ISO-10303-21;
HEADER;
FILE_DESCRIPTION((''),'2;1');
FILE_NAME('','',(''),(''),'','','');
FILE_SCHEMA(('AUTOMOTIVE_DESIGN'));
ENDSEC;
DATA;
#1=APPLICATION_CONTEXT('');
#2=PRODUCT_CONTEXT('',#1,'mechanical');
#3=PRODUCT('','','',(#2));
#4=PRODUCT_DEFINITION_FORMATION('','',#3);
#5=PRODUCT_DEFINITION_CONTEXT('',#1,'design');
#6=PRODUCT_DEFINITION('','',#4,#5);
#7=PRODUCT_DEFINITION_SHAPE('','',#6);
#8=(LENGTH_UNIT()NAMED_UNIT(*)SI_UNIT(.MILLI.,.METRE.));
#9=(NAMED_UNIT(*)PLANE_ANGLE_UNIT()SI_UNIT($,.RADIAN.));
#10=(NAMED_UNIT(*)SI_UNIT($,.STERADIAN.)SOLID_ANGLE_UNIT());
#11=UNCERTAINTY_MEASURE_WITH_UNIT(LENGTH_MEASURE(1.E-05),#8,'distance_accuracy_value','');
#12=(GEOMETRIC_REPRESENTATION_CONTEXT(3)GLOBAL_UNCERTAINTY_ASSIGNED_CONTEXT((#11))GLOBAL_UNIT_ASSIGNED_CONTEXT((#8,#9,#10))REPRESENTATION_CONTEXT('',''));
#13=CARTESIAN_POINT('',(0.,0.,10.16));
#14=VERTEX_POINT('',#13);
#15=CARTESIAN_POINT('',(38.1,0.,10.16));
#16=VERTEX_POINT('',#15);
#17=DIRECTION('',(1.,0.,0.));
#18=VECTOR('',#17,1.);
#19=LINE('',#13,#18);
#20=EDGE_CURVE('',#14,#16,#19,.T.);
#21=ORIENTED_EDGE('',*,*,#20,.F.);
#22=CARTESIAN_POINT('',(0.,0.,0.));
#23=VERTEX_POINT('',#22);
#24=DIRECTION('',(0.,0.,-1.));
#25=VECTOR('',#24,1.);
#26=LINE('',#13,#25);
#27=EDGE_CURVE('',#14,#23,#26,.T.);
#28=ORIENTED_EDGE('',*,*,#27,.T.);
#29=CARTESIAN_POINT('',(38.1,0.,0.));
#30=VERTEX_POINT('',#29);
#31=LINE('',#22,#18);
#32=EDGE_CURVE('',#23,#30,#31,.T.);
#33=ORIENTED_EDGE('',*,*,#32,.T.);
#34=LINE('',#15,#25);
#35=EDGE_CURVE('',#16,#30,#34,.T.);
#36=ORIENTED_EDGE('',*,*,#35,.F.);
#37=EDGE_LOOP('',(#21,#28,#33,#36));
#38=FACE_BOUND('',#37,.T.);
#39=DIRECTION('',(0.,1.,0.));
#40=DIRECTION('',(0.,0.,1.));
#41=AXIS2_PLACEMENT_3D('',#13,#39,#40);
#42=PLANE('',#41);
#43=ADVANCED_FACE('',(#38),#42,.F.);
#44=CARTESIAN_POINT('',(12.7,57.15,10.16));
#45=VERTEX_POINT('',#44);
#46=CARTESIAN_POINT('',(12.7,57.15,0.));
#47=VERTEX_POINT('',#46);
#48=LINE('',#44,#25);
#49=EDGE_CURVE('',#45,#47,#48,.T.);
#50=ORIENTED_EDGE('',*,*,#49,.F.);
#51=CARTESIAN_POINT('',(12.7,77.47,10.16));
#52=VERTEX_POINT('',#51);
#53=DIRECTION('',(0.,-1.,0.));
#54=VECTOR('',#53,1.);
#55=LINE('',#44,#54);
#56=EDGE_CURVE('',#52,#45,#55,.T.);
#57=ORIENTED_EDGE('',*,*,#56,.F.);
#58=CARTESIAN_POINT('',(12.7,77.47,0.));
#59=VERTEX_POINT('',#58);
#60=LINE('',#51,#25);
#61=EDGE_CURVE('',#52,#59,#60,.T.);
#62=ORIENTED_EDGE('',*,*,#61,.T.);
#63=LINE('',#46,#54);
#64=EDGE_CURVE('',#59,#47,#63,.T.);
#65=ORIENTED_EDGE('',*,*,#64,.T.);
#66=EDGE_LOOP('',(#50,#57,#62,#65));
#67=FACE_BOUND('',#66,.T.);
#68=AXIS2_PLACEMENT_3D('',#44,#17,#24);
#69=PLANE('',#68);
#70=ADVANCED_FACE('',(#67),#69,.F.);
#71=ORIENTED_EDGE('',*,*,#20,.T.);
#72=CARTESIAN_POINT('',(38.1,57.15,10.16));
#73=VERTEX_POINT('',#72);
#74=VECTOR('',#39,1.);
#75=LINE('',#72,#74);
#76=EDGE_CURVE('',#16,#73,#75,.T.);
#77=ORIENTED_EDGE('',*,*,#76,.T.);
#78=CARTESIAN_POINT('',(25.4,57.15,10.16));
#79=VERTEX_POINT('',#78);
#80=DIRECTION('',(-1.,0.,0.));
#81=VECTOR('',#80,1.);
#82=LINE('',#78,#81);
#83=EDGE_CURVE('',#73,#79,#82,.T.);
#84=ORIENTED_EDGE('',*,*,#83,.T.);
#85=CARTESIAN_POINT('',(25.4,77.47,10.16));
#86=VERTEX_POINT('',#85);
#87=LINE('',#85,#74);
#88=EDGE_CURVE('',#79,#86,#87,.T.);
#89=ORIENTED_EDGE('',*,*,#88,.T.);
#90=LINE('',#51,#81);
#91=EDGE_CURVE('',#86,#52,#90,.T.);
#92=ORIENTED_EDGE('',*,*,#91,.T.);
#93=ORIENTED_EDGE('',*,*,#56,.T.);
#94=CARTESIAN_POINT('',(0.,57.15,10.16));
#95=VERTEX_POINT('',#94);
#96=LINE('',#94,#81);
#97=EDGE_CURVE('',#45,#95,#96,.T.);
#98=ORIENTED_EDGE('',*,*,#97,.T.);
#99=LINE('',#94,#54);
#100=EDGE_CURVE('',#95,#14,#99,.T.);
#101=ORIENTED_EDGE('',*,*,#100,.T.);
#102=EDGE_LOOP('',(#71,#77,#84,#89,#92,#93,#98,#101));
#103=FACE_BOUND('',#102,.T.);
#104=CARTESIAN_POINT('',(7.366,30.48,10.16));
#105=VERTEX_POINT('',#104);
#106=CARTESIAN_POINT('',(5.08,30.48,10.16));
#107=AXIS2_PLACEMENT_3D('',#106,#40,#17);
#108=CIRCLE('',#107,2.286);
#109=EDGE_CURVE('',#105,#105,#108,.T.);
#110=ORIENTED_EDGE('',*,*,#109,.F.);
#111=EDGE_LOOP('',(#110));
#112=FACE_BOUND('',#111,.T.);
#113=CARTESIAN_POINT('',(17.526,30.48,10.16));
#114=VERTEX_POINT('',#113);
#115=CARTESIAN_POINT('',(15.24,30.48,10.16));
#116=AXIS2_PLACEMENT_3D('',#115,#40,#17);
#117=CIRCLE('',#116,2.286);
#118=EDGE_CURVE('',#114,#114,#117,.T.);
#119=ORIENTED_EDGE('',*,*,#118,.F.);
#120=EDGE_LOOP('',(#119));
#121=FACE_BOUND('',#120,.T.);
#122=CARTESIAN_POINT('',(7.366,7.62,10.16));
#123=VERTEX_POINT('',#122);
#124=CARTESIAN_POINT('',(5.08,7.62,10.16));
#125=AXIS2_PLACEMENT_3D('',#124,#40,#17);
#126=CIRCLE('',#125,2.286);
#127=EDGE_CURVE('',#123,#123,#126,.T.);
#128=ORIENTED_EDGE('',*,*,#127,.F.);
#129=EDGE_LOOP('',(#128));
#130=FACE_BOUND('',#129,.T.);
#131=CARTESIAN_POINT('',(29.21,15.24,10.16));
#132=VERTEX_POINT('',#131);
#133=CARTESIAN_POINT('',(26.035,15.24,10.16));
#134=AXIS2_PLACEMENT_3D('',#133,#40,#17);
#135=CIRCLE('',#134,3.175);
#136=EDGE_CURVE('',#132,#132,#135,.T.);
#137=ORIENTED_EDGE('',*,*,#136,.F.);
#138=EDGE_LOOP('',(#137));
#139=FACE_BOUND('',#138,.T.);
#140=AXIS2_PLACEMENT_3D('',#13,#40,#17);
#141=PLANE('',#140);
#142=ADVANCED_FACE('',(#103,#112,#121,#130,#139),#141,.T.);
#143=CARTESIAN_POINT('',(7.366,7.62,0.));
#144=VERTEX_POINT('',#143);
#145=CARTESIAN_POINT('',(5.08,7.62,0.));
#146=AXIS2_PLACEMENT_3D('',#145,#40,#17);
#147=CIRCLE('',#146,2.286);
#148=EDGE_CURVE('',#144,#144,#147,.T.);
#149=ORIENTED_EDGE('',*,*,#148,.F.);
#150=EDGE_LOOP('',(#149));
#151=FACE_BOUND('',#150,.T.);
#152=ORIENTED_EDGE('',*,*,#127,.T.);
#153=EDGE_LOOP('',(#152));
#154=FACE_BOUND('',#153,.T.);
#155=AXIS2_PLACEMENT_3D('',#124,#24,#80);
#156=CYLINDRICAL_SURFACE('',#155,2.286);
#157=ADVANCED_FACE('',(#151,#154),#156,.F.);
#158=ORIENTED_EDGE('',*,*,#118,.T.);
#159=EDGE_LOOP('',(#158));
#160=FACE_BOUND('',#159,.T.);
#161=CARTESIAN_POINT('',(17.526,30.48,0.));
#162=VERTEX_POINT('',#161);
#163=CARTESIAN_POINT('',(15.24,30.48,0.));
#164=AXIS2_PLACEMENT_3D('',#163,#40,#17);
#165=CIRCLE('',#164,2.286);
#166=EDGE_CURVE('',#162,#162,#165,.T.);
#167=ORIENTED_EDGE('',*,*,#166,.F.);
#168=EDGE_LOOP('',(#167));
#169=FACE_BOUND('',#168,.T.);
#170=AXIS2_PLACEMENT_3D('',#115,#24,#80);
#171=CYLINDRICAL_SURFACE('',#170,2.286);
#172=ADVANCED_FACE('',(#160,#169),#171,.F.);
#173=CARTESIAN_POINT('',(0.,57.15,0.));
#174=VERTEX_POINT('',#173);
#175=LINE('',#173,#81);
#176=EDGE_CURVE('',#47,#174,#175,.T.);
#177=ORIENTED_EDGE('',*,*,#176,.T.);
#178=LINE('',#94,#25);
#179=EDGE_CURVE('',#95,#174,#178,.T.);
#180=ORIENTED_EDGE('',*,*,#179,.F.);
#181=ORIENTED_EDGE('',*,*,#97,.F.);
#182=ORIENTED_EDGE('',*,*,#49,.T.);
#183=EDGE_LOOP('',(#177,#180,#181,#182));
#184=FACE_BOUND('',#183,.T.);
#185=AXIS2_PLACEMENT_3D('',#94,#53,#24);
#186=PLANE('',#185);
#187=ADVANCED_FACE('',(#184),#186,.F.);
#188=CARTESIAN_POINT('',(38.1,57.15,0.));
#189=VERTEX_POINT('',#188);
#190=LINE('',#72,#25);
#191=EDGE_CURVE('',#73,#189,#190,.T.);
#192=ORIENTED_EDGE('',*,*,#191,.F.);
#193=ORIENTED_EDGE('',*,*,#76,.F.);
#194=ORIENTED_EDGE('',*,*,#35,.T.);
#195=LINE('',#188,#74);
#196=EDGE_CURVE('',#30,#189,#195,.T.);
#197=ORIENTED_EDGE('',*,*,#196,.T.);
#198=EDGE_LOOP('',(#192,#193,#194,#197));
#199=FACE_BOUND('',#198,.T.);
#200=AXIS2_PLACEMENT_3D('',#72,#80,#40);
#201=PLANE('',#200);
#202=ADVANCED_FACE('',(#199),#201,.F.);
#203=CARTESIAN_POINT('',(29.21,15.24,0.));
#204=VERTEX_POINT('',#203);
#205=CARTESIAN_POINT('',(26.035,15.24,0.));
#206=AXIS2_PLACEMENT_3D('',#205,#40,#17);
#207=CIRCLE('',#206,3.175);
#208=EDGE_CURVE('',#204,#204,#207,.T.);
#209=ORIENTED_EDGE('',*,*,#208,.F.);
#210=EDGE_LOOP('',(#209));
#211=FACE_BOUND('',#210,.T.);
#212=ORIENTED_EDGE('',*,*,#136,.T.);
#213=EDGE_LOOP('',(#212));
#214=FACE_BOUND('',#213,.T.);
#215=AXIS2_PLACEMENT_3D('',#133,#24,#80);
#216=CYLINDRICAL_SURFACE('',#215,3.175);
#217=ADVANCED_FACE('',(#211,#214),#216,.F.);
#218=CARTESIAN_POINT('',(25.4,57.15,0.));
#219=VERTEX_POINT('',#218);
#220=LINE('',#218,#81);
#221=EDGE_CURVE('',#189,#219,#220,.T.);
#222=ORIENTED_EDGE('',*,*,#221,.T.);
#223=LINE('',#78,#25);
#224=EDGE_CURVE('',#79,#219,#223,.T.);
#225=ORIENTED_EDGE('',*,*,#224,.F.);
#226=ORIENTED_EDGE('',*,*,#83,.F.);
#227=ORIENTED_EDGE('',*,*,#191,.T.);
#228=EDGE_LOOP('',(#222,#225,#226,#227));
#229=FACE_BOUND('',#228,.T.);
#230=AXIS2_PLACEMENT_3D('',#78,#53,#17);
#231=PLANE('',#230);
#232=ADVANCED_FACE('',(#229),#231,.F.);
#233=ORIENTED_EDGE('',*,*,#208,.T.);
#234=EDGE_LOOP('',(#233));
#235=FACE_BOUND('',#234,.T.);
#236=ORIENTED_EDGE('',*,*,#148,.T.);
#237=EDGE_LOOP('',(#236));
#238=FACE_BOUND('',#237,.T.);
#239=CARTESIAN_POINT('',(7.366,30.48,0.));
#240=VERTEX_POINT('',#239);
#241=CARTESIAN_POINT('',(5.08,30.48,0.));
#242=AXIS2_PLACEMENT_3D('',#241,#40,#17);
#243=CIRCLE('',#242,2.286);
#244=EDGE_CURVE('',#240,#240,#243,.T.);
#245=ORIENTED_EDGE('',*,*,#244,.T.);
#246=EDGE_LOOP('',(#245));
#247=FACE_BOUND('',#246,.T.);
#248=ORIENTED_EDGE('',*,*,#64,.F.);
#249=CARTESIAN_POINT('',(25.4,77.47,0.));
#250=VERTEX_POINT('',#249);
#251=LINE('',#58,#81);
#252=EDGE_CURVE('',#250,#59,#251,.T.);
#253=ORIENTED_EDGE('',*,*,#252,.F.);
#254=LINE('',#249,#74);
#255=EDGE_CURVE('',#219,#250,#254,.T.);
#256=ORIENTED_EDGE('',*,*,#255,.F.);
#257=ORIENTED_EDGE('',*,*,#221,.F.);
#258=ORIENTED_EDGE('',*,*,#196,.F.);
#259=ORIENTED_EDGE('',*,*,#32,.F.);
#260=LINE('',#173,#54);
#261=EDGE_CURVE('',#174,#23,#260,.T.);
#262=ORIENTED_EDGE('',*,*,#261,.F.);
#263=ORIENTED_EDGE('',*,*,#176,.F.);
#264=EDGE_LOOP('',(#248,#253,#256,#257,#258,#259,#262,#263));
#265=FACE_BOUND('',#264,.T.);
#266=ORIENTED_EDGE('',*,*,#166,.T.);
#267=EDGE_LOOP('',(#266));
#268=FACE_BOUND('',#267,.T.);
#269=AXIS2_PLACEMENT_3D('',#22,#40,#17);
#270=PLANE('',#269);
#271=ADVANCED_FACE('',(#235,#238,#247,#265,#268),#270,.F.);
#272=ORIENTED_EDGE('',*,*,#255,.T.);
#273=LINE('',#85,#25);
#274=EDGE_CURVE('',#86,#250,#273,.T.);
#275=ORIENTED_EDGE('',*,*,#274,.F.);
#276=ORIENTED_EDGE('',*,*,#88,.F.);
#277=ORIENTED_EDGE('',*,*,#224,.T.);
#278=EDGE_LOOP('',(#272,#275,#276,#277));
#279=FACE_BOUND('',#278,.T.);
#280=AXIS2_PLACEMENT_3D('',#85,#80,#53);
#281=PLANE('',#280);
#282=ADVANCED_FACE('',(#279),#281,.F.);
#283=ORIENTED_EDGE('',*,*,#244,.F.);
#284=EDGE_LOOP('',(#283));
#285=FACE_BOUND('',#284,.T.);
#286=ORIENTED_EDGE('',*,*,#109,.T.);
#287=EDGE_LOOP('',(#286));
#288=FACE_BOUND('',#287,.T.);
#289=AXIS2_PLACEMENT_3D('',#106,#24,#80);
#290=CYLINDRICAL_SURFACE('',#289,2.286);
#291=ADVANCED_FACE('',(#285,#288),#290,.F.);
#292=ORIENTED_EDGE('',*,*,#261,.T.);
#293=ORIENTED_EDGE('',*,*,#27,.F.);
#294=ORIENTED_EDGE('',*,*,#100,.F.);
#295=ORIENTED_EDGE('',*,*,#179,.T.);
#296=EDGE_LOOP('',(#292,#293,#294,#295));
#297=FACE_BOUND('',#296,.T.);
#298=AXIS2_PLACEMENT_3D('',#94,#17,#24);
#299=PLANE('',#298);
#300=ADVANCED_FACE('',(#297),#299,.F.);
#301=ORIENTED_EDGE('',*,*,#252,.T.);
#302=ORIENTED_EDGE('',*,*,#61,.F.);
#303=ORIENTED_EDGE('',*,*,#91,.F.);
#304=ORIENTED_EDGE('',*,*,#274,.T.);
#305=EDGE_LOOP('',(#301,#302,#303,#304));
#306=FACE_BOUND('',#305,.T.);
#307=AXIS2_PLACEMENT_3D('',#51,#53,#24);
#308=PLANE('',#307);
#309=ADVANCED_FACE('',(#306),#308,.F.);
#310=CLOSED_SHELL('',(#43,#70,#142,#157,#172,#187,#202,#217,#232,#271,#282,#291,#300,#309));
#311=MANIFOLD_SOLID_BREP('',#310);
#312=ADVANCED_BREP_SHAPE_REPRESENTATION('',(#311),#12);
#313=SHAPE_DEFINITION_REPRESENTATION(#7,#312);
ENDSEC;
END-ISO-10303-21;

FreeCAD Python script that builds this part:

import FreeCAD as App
import Part
import Sketcher

V = App.Vector
Q = App.Units.Quantity


def add_polygon(sketch, points):
    """Adds a closed chain of lines whose ends are joined by coincident constraints."""
    first, n = sketch.GeometryCount, len(points)
    for a, b in zip(points, points[1:] + points[:1]):
        sketch.addGeometry(Part.LineSegment(App.Vector(*a, 0), App.Vector(*b, 0)), False)
    for i in range(n):
        sketch.addConstraint(Sketcher.Constraint("Coincident", first + i, 2, first + (i + 1) % n, 1))

doc = App.newDocument("Part")
body = doc.addObject("PartDesign::Body", "Body")

# Sketch on XY plane
sketch1 = body.newObject("Sketcher::SketchObject", "Sketch")
sketch1.AttachmentSupport = (doc.getObject("XY_Plane"), [""])
sketch1.MapMode = "FlatFace"
add_polygon(sketch1, [(12.7, 57.15), (0, 57.15), (0, 0), (38.1, 0), (38.1, 57.15), (25.4, 57.15), (25.4, 77.47), (12.7, 77.47)])  # lines 0-7
sketch1.addGeometry(Part.Circle(V(26.035, 15.24, 0), V(0, 0, 1), 3.175), False)  # 8
sketch1.addGeometry(Part.Circle(V(5.08, 7.62, 0), V(0, 0, 1), 2.286), False)  # 9
sketch1.addGeometry(Part.Circle(V(15.24, 30.48, 0), V(0, 0, 1), 2.286), False)  # 10
sketch1.addGeometry(Part.Circle(V(5.08, 30.48, 0), V(0, 0, 1), 2.286), False)  # 11
sketch1.addConstraint([
    Sketcher.Constraint("Horizontal", 0),
    Sketcher.Constraint("Vertical", 1),
    Sketcher.Constraint("Horizontal", 2),
    Sketcher.Constraint("Vertical", 3),
    Sketcher.Constraint("Horizontal", 4),
    Sketcher.Constraint("Vertical", 5),
    Sketcher.Constraint("Horizontal", 6),
    Sketcher.Constraint("Vertical", 7),
    Sketcher.Constraint("Coincident", 1, 2, -1, 1),
    Sketcher.Constraint("Equal", 9, 10),
    Sketcher.Constraint("Equal", 10, 11),
    Sketcher.Constraint("Horizontal", 10, 3, 11, 3),
    Sketcher.Constraint("Horizontal", 0, 2, 3, 2),
    Sketcher.Constraint("Vertical", 9, 3, 11, 3),
    Sketcher.Constraint("Equal", 0, 4),
    Sketcher.Constraint("Equal", 4, 6),
    Sketcher.Constraint("Diameter", 8, Q("0.25 in")),
    Sketcher.Constraint("Diameter", 9, Q("0.18 in")),
    Sketcher.Constraint("DistanceX", 0, 2, 0, 1, Q("0.5 in")),
    Sketcher.Constraint("DistanceY", 5, 1, 5, 2, Q("0.8 in")),
    Sketcher.Constraint("DistanceY", 1, 2, 1, 1, Q("2.25 in")),
    Sketcher.Constraint("DistanceY", -1, 1, 8, 3, Q("0.6 in")),
    Sketcher.Constraint("DistanceX", -1, 1, 9, 3, Q("0.2 in")),
    Sketcher.Constraint("DistanceY", -1, 1, 9, 3, Q("0.3 in")),
    Sketcher.Constraint("DistanceX", -1, 1, 10, 3, Q("0.6 in")),
    Sketcher.Constraint("DistanceY", -1, 1, 10, 3, Q("1.2 in")),
    Sketcher.Constraint("DistanceX", -1, 1, 8, 3, Q("1.025 in")),
])
pad1 = body.newObject("PartDesign::Pad", "Pad")
pad1.Profile = sketch1
pad1.Length = Q("0.4 in")

doc.recompute()
